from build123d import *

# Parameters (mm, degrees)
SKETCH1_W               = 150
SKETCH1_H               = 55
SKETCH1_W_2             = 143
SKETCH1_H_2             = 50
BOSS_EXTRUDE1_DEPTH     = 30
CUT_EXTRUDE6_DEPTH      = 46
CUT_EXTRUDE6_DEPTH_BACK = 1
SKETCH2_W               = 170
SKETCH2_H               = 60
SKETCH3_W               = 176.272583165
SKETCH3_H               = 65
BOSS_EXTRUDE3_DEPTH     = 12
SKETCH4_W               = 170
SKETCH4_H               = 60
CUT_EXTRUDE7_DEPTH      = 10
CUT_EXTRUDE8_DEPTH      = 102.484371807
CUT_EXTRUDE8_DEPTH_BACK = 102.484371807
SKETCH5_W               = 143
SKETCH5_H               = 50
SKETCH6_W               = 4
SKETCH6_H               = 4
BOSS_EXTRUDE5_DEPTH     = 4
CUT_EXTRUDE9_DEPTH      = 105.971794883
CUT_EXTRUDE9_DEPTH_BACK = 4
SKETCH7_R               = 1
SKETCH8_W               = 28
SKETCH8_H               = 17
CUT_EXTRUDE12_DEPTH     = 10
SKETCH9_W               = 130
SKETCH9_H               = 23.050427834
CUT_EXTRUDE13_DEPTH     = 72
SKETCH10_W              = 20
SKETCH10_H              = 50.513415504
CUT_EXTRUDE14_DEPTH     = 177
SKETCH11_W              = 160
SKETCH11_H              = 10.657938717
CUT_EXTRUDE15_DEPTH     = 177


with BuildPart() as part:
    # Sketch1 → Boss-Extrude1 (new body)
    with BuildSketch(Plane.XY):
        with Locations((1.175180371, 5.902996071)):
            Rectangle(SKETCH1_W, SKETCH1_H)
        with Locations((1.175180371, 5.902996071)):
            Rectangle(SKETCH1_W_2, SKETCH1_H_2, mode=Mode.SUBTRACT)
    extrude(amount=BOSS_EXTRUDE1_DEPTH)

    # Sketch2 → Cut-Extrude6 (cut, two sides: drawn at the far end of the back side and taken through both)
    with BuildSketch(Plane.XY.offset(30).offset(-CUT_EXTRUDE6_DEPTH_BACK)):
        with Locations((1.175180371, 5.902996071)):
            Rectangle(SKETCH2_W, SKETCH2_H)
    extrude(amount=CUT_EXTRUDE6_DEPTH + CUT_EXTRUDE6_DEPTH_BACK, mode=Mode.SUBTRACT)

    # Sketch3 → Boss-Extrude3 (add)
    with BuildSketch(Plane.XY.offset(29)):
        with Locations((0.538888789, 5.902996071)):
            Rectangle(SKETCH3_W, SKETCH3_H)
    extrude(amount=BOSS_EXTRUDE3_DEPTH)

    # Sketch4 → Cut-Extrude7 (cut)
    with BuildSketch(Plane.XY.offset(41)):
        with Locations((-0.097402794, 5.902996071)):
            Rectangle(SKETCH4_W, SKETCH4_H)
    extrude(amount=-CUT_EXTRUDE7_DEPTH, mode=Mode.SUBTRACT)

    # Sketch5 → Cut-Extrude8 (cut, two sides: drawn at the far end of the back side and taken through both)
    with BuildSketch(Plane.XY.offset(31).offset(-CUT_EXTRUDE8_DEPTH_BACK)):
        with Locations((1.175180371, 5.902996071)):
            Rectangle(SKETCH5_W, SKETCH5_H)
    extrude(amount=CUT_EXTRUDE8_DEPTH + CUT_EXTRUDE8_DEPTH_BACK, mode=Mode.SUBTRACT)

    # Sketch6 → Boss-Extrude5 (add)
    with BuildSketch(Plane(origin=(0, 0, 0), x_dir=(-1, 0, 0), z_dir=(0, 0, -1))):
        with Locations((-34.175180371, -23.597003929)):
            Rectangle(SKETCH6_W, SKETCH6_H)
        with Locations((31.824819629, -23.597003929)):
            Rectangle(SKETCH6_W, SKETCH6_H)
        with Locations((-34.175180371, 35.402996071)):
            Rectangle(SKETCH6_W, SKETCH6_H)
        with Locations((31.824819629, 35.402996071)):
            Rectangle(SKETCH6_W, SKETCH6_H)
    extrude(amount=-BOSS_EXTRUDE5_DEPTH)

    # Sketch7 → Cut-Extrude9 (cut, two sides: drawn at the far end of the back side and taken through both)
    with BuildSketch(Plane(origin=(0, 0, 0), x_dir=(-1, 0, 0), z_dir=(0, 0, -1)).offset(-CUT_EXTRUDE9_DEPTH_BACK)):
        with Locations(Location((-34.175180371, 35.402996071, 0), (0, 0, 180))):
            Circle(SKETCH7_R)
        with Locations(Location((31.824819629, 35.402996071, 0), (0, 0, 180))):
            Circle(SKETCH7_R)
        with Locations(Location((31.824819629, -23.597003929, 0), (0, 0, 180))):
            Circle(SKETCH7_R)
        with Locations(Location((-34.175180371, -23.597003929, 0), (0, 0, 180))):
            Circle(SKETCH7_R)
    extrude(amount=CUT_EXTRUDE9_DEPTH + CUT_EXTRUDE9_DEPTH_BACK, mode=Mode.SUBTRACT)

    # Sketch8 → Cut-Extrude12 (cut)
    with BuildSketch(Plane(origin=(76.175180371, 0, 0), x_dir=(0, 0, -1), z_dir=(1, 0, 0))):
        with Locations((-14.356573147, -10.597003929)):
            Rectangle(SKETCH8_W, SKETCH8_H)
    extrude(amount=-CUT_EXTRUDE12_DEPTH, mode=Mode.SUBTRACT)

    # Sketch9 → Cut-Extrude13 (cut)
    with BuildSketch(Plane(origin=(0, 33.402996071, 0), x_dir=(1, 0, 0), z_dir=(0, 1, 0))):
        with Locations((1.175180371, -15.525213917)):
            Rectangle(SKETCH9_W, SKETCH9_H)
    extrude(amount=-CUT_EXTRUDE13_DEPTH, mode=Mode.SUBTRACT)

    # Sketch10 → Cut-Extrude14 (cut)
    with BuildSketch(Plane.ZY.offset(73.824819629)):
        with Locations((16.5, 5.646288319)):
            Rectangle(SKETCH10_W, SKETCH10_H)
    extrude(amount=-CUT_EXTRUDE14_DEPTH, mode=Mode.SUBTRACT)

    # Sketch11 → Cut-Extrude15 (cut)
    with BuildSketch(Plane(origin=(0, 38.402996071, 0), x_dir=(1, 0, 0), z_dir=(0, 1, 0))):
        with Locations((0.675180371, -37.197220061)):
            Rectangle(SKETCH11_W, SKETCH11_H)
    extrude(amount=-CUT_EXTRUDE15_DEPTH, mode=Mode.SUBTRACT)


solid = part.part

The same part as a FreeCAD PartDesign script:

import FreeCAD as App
import Part
import Sketcher
from FreeCAD import Vector

doc = App.newDocument("Part")
body = doc.addObject("PartDesign::Body", "Body")

sketch1 = doc.addObject("Sketcher::SketchObject", "Sketch")
body.addObject(sketch1)
sketch1.AttachmentSupport = (doc.XY_Plane, [""])
sketch1.MapMode = "FlatFace"
sketch1.addGeometry([
    Part.LineSegment(Vector(-74, 33, 0), Vector(-74, -22, 0)),
    Part.LineSegment(Vector(-74, -22, 0), Vector(76, -22, 0)),
    Part.LineSegment(Vector(76, -22, 0), Vector(76, 33, 0)),
    Part.LineSegment(Vector(76, 33, 0), Vector(-74, 33, 0)),
    Part.LineSegment(Vector(73, -19, 0), Vector(-70, -19, 0)),
    Part.LineSegment(Vector(-70, -19, 0), Vector(-70, 31, 0)),
    Part.LineSegment(Vector(-70, 31, 0), Vector(73, 31, 0)),
    Part.LineSegment(Vector(73, 31, 0), Vector(73, -19, 0)),
], False)
sketch1.addConstraint([
    Sketcher.Constraint("Coincident", 0, 2, 1, 1),
    Sketcher.Constraint("Coincident", 1, 2, 2, 1),
    Sketcher.Constraint("Coincident", 2, 2, 3, 1),
    Sketcher.Constraint("Coincident", 3, 2, 0, 1),
    Sketcher.Constraint("Coincident", 4, 2, 5, 1),
    Sketcher.Constraint("Coincident", 5, 2, 6, 1),
    Sketcher.Constraint("Coincident", 6, 2, 7, 1),
    Sketcher.Constraint("Coincident", 7, 2, 4, 1),
    Sketcher.Constraint("Vertical", 0),
    Sketcher.Constraint("Horizontal", 1),
    Sketcher.Constraint("Vertical", 2),
    Sketcher.Constraint("Horizontal", 3),
    Sketcher.Constraint("Horizontal", 4),
    Sketcher.Constraint("Vertical", 5),
    Sketcher.Constraint("Horizontal", 6),
    Sketcher.Constraint("Vertical", 7),
    Sketcher.Constraint("DistanceX", 1, 1, 1, 2, 150.0),
    Sketcher.Constraint("DistanceX", 4, 2, 4, 1, 143.0),
    Sketcher.Constraint("DistanceY", 0, 2, 0, 1, 55.0),
    Sketcher.Constraint("DistanceY", 5, 1, 5, 2, 50.0),
    Sketcher.Constraint("DistanceX", 0, 2, 4, 2, 3.5),
    Sketcher.Constraint("DistanceY", 0, 2, 4, 2, 2.5),
    Sketcher.Constraint("DistanceX", 0, 2, -1, 1, 73.82482),
    Sketcher.Constraint("DistanceY", 0, 2, -1, 1, 21.597004),
])
pad1 = doc.addObject("PartDesign::Pad", "Pad")
body.addObject(pad1)
pad1.Profile = sketch1
pad1.Length = 30

sketch2 = doc.addObject("Sketcher::SketchObject", "Sketch001")
body.addObject(sketch2)
sketch2.AttachmentSupport = (doc.XY_Plane, [""])
sketch2.MapMode = "FlatFace"
sketch2.AttachmentOffset = App.Placement(Vector(0, 0, 30), App.Rotation())
sketch2.addGeometry([
    Part.LineSegment(Vector(-84, 36, 0), Vector(-84, -24, 0)),
    Part.LineSegment(Vector(-84, -24, 0), Vector(86, -24, 0)),
    Part.LineSegment(Vector(86, -24, 0), Vector(86, 36, 0)),
    Part.LineSegment(Vector(86, 36, 0), Vector(-84, 36, 0)),
], False)
sketch2.addConstraint([
    Sketcher.Constraint("Coincident", 0, 2, 1, 1),
    Sketcher.Constraint("Coincident", 1, 2, 2, 1),
    Sketcher.Constraint("Coincident", 2, 2, 3, 1),
    Sketcher.Constraint("Coincident", 3, 2, 0, 1),
    Sketcher.Constraint("Vertical", 0),
    Sketcher.Constraint("Horizontal", 1),
    Sketcher.Constraint("Vertical", 2),
    Sketcher.Constraint("Horizontal", 3),
    Sketcher.Constraint("DistanceX", 1, 1, 1, 2, 170.0),
    Sketcher.Constraint("DistanceY", 0, 2, 0, 1, 60.0),
    Sketcher.Constraint("DistanceX", 0, 2, -1, 1, 83.82482),
    Sketcher.Constraint("DistanceY", 0, 2, -1, 1, 24.097004),
])
pocket1 = doc.addObject("PartDesign::Pocket", "Pocket")
body.addObject(pocket1)
pocket1.Profile = sketch2
pocket1.Type = "TwoLengths"
pocket1.Length = 46
pocket1.Length2 = 1
pocket1.Reversed = True

sketch3 = doc.addObject("Sketcher::SketchObject", "Sketch002")
body.addObject(sketch3)
sketch3.AttachmentSupport = (doc.XY_Plane, [""])
sketch3.MapMode = "FlatFace"
sketch3.AttachmentOffset = App.Placement(Vector(0, 0, 29), App.Rotation())
sketch3.addGeometry([
    Part.LineSegment(Vector(-88, 38, 0), Vector(-88, -27, 0)),
    Part.LineSegment(Vector(-88, -27, 0), Vector(89, -27, 0)),
    Part.LineSegment(Vector(89, -27, 0), Vector(89, 38, 0)),
    Part.LineSegment(Vector(89, 38, 0), Vector(-88, 38, 0)),
], False)
sketch3.addConstraint([
    Sketcher.Constraint("Coincident", 0, 2, 1, 1),
    Sketcher.Constraint("Coincident", 1, 2, 2, 1),
    Sketcher.Constraint("Coincident", 2, 2, 3, 1),
    Sketcher.Constraint("Coincident", 3, 2, 0, 1),
    Sketcher.Constraint("Vertical", 0),
    Sketcher.Constraint("Horizontal", 1),
    Sketcher.Constraint("Vertical", 2),
    Sketcher.Constraint("Horizontal", 3),
    Sketcher.Constraint("DistanceY", 0, 2, 0, 1, 65.0),
    Sketcher.Constraint("DistanceX", 1, 1, 1, 2, 176.272583),
    Sketcher.Constraint("DistanceX", -1, 1, 1, 2, 88.67518),
    Sketcher.Constraint("DistanceY", 0, 2, -1, 1, 26.597004),
])
pad2 = doc.addObject("PartDesign::Pad", "Pad001")
body.addObject(pad2)
pad2.Profile = sketch3
pad2.Length = 12

sketch4 = doc.addObject("Sketcher::SketchObject", "Sketch003")
body.addObject(sketch4)
sketch4.AttachmentSupport = (doc.XY_Plane, [""])
sketch4.MapMode = "FlatFace"
sketch4.AttachmentOffset = App.Placement(Vector(0, 0, 41), App.Rotation())
sketch4.addGeometry([
    Part.LineSegment(Vector(-85, 36, 0), Vector(-85, -24, 0)),
    Part.LineSegment(Vector(-85, -24, 0), Vector(85, -24, 0)),
    Part.LineSegment(Vector(85, -24, 0), Vector(85, 36, 0)),
    Part.LineSegment(Vector(85, 36, 0), Vector(-85, 36, 0)),
], False)
sketch4.addConstraint([
    Sketcher.Constraint("Coincident", 0, 2, 1, 1),
    Sketcher.Constraint("Coincident", 1, 2, 2, 1),
    Sketcher.Constraint("Coincident", 2, 2, 3, 1),
    Sketcher.Constraint("Coincident", 3, 2, 0, 1),
    Sketcher.Constraint("Vertical", 0),
    Sketcher.Constraint("Horizontal", 1),
    Sketcher.Constraint("Vertical", 2),
    Sketcher.Constraint("Horizontal", 3),
    Sketcher.Constraint("DistanceX", 1, 1, 1, 2, 170.0),
    Sketcher.Constraint("DistanceY", 0, 2, 0, 1, 60.0),
    Sketcher.Constraint("DistanceX", 0, 2, -1, 1, 85.097403),
    Sketcher.Constraint("DistanceY", 0, 2, -1, 1, 24.097004),
])
pocket2 = doc.addObject("PartDesign::Pocket", "Pocket001")
body.addObject(pocket2)
pocket2.Profile = sketch4
pocket2.Length = 10

sketch5 = doc.addObject("Sketcher::SketchObject", "Sketch004")
body.addObject(sketch5)
sketch5.AttachmentSupport = (doc.XY_Plane, [""])
sketch5.MapMode = "FlatFace"
sketch5.AttachmentOffset = App.Placement(Vector(0, 0, 31), App.Rotation())
sketch5.addGeometry([
    Part.LineSegment(Vector(-70, 31, 0), Vector(-70, -19, 0)),
    Part.LineSegment(Vector(-70, -19, 0), Vector(73, -19, 0)),
    Part.LineSegment(Vector(73, -19, 0), Vector(73, 31, 0)),
    Part.LineSegment(Vector(73, 31, 0), Vector(-70, 31, 0)),
], False)
sketch5.addConstraint([
    Sketcher.Constraint("Coincident", 0, 2, 1, 1),
    Sketcher.Constraint("Coincident", 1, 2, 2, 1),
    Sketcher.Constraint("Coincident", 2, 2, 3, 1),
    Sketcher.Constraint("Coincident", 3, 2, 0, 1),
    Sketcher.Constraint("Vertical", 0),
    Sketcher.Constraint("Horizontal", 1),
    Sketcher.Constraint("Vertical", 2),
    Sketcher.Constraint("Horizontal", 3),
    Sketcher.Constraint("DistanceX", 1, 1, 1, 2, 143.0),
    Sketcher.Constraint("DistanceY", 0, 2, 0, 1, 50.0),
    Sketcher.Constraint("DistanceX", 0, 2, -1, 1, 70.32482),
    Sketcher.Constraint("DistanceY", 0, 2, -1, 1, 19.097004),
])
pocket3 = doc.addObject("PartDesign::Pocket", "Pocket002")
body.addObject(pocket3)
pocket3.Profile = sketch5
pocket3.Type = "ThroughAll"
pocket3.Midplane = True

sketch6 = doc.addObject("Sketcher::SketchObject", "Sketch005")
body.addObject(sketch6)
sketch6.AttachmentSupport = (doc.XY_Plane, [""])
sketch6.MapMode = "FlatFace"
sketch6.addGeometry([
    Part.LineSegment(Vector(36.2, -21.6, 0), Vector(36.2, -25.6, 0)),
    Part.LineSegment(Vector(36.2, -25.6, 0), Vector(32.2, -25.6, 0)),
    Part.LineSegment(Vector(32.2, -25.6, 0), Vector(32.2, -21.6, 0)),
    Part.LineSegment(Vector(32.2, -21.6, 0), Vector(36.2, -21.6, 0)),
    Part.LineSegment(Vector(-29.8, -21.6, 0), Vector(-29.8, -25.6, 0)),
    Part.LineSegment(Vector(-29.8, -25.6, 0), Vector(-33.8, -25.6, 0)),
    Part.LineSegment(Vector(-33.8, -25.6, 0), Vector(-33.8, -21.6, 0)),
    Part.LineSegment(Vector(-33.8, -21.6, 0), Vector(-29.8, -21.6, 0)),
    Part.LineSegment(Vector(36.2, 37.4, 0), Vector(36.2, 33.4, 0)),
    Part.LineSegment(Vector(36.2, 33.4, 0), Vector(32.2, 33.4, 0)),
    Part.LineSegment(Vector(32.2, 33.4, 0), Vector(32.2, 37.4, 0)),
    Part.LineSegment(Vector(32.2, 37.4, 0), Vector(36.2, 37.4, 0)),
    Part.LineSegment(Vector(-29.8, 37.4, 0), Vector(-29.8, 33.4, 0)),
    Part.LineSegment(Vector(-29.8, 33.4, 0), Vector(-33.8, 33.4, 0)),
    Part.LineSegment(Vector(-33.8, 33.4, 0), Vector(-33.8, 37.4, 0)),
    Part.LineSegment(Vector(-33.8, 37.4, 0), Vector(-29.8, 37.4, 0)),
], False)
sketch6.addConstraint([
    Sketcher.Constraint("Coincident", 0, 2, 1, 1),
    Sketcher.Constraint("Coincident", 1, 2, 2, 1),
    Sketcher.Constraint("Coincident", 2, 2, 3, 1),
    Sketcher.Constraint("Coincident", 3, 2, 0, 1),
    Sketcher.Constraint("Coincident", 4, 2, 5, 1),
    Sketcher.Constraint("Coincident", 5, 2, 6, 1),
    Sketcher.Constraint("Coincident", 6, 2, 7, 1),
    Sketcher.Constraint("Coincident", 7, 2, 4, 1),
    Sketcher.Constraint("Coincident", 8, 2, 9, 1),
    Sketcher.Constraint("Coincident", 9, 2, 10, 1),
    Sketcher.Constraint("Coincident", 10, 2, 11, 1),
    Sketcher.Constraint("Coincident", 11, 2, 8, 1),
    Sketcher.Constraint("Coincident", 12, 2, 13, 1),
    Sketcher.Constraint("Coincident", 13, 2, 14, 1),
    Sketcher.Constraint("Coincident", 14, 2, 15, 1),
    Sketcher.Constraint("Coincident", 15, 2, 12, 1),
    Sketcher.Constraint("Vertical", 0),
    Sketcher.Constraint("Horizontal", 1),
    Sketcher.Constraint("Vertical", 2),
    Sketcher.Constraint("Horizontal", 3),
    Sketcher.Constraint("Vertical", 4),
    Sketcher.Constraint("Horizontal", 5),
    Sketcher.Constraint("Vertical", 6),
    Sketcher.Constraint("Horizontal", 7),
    Sketcher.Constraint("Vertical", 8),
    Sketcher.Constraint("Horizontal", 9),
    Sketcher.Constraint("Vertical", 10),
    Sketcher.Constraint("Horizontal", 11),
    Sketcher.Constraint("Vertical", 12),
    Sketcher.Constraint("Horizontal", 13),
    Sketcher.Constraint("Vertical", 14),
    Sketcher.Constraint("Horizontal", 15),
    Sketcher.Constraint("Horizontal", 1, 2, 4, 2),
    Sketcher.Constraint("Horizontal", 3, 2, 6, 2),
    Sketcher.Constraint("Horizontal", 9, 2, 12, 2),
    Sketcher.Constraint("Horizontal", 11, 2, 14, 2),
    Sketcher.Constraint("Vertical", 3, 2, 8, 2),
    Sketcher.Constraint("Vertical", 2, 2, 9, 2),
    Sketcher.Constraint("Vertical", 7, 2, 12, 2),
    Sketcher.Constraint("Vertical", 6, 2, 13, 2),
    Sketcher.Constraint("Equal", 3, 5),
    Sketcher.Constraint("Equal", 15, 0),
    Sketcher.Constraint("Equal", 6, 8),
    Sketcher.Constraint("DistanceX", 1, 2, 1, 1, 4.0),
    Sketcher.Constraint("DistanceX", 4, 2, 1, 2, 62.0),
    Sketcher.Constraint("DistanceY", 3, 2, 8, 2, 55.0),
    Sketcher.Constraint("DistanceX", -1, 1, 0, 2, 36.17518),
    Sketcher.Constraint("DistanceY", 0, 2, -1, 1, 25.597004),
])
pad3 = doc.addObject("PartDesign::Pad", "Pad002")
body.addObject(pad3)
pad3.Profile = sketch6
pad3.Length = 4

sketch7 = doc.addObject("Sketcher::SketchObject", "Sketch006")
body.addObject(sketch7)
sketch7.AttachmentSupport = (doc.XY_Plane, [""])
sketch7.MapMode = "FlatFace"
sketch7.addGeometry([
    Part.Circle(Vector(34.2, 35.4, 0), Vector(0, 0, 1), 1),
    Part.Circle(Vector(-31.8, 35.4, 0), Vector(0, 0, 1), 1),
    Part.Circle(Vector(-31.8, -23.6, 0), Vector(0, 0, 1), 1),
    Part.Circle(Vector(34.2, -23.6, 0), Vector(0, 0, 1), 1),
], False)
sketch7.addConstraint([
    Sketcher.Constraint("Equal", 0, 1),
    Sketcher.Constraint("Equal", 1, 2),
    Sketcher.Constraint("Equal", 2, 3),
    Sketcher.Constraint("Horizontal", 0, 3, 1, 3),
    Sketcher.Constraint("Horizontal", 2, 3, 3, 3),
    Sketcher.Constraint("Vertical", 1, 3, 2, 3),
    Sketcher.Constraint("Vertical", 0, 3, 3, 3),
    Sketcher.Constraint("Diameter", 0, 2.0),
    Sketcher.Constraint("DistanceX", 1, 3, 0, 3, 66.0),
    Sketcher.Constraint("DistanceY", 2, 3, 1, 3, 59.0),
    Sketcher.Constraint("DistanceX", -1, 1, 0, 3, 34.17518),
    Sketcher.Constraint("DistanceY", -1, 1, 0, 3, 35.402996),
])
pocket4 = doc.addObject("PartDesign::Pocket", "Pocket003")
body.addObject(pocket4)
pocket4.Profile = sketch7
pocket4.Type = "TwoLengths"
pocket4.Length = 105.971795
pocket4.Length2 = 4

sketch8 = doc.addObject("Sketcher::SketchObject", "Sketch007")
body.addObject(sketch8)
sketch8.AttachmentSupport = (doc.YZ_Plane, [""])
sketch8.MapMode = "FlatFace"
sketch8.AttachmentOffset = App.Placement(Vector(0, 0, 76.17518), App.Rotation())
sketch8.addGeometry([
    Part.LineSegment(Vector(-2, 28, 0), Vector(-19, 28, 0)),
    Part.LineSegment(Vector(-19, 28, 0), Vector(-19, 0, 0)),
    Part.LineSegment(Vector(-19, 0, 0), Vector(-2, 0, 0)),
    Part.LineSegment(Vector(-2, 0, 0), Vector(-2, 28, 0)),
], False)
sketch8.addConstraint([
    Sketcher.Constraint("Coincident", 0, 2, 1, 1),
    Sketcher.Constraint("Coincident", 1, 2, 2, 1),
    Sketcher.Constraint("Coincident", 2, 2, 3, 1),
    Sketcher.Constraint("Coincident", 3, 2, 0, 1),
    Sketcher.Constraint("Horizontal", 0),
    Sketcher.Constraint("Vertical", 1),
    Sketcher.Constraint("Horizontal", 2),
    Sketcher.Constraint("Vertical", 3),
    Sketcher.Constraint("DistanceX", 0, 2, 0, 1, 17.0),
    Sketcher.Constraint("DistanceY", 1, 2, 1, 1, 28.0),
    Sketcher.Constraint("DistanceX", 0, 2, -1, 1, 19.097004),
    Sketcher.Constraint("DistanceY", -1, 1, 0, 2, 28.356573),
])
pocket5 = doc.addObject("PartDesign::Pocket", "Pocket004")
body.addObject(pocket5)
pocket5.Profile = sketch8
pocket5.Length = 10

sketch9 = doc.addObject("Sketcher::SketchObject", "Sketch008")
body.addObject(sketch9)
sketch9.AttachmentSupport = (doc.XZ_Plane, [""])
sketch9.MapMode = "FlatFace"
sketch9.AttachmentOffset = App.Placement(Vector(0, 0, -33.402996), App.Rotation())
sketch9.addGeometry([
    Part.LineSegment(Vector(-64, 4, 0), Vector(-64, 27, 0)),
    Part.LineSegment(Vector(-64, 27, 0), Vector(66, 27, 0)),
    Part.LineSegment(Vector(66, 27, 0), Vector(66, 4, 0)),
    Part.LineSegment(Vector(66, 4, 0), Vector(-64, 4, 0)),
], False)
sketch9.addConstraint([
    Sketcher.Constraint("Coincident", 0, 2, 1, 1),
    Sketcher.Constraint("Coincident", 1, 2, 2, 1),
    Sketcher.Constraint("Coincident", 2, 2, 3, 1),
    Sketcher.Constraint("Coincident", 3, 2, 0, 1),
    Sketcher.Constraint("Vertical", 0),
    Sketcher.Constraint("Horizontal", 1),
    Sketcher.Constraint("Vertical", 2),
    Sketcher.Constraint("Horizontal", 3),
    Sketcher.Constraint("DistanceX", 1, 1, 1, 2, 130.0),
    Sketcher.Constraint("DistanceY", -1, 1, 2, 2, 4.0),
    Sketcher.Constraint("DistanceY", 0, 1, 0, 2, 23.050428),
    Sketcher.Constraint("DistanceX", 0, 2, -1, 1, 63.82482),
])
pocket6 = doc.addObject("PartDesign::Pocket", "Pocket005")
body.addObject(pocket6)
pocket6.Profile = sketch9
pocket6.Length = 72
pocket6.Reversed = True

sketch10 = doc.addObject("Sketcher::SketchObject", "Sketch009")
body.addObject(sketch10)
sketch10.AttachmentSupport = (doc.YZ_Plane, [""])
sketch10.MapMode = "FlatFace"
sketch10.AttachmentOffset = App.Placement(Vector(0, 0, -73.82482), App.Rotation())
sketch10.addGeometry([
    Part.LineSegment(Vector(31, 6, 0), Vector(-20, 6, 0)),
    Part.LineSegment(Vector(-20, 6, 0), Vector(-20, 26, 0)),
    Part.LineSegment(Vector(-20, 26, 0), Vector(31, 26, 0)),
    Part.LineSegment(Vector(31, 26, 0), Vector(31, 6, 0)),
], False)
sketch10.addConstraint([
    Sketcher.Constraint("Coincident", 0, 2, 1, 1),
    Sketcher.Constraint("Coincident", 1, 2, 2, 1),
    Sketcher.Constraint("Coincident", 2, 2, 3, 1),
    Sketcher.Constraint("Coincident", 3, 2, 0, 1),
    Sketcher.Constraint("Horizontal", 0),
    Sketcher.Constraint("Vertical", 1),
    Sketcher.Constraint("Horizontal", 2),
    Sketcher.Constraint("Vertical", 3),
    Sketcher.Constraint("DistanceY", 1, 1, 1, 2, 20.0),
    Sketcher.Constraint("DistanceY", -1, 1, 0, 2, 6.5),
    Sketcher.Constraint("DistanceX", 0, 2, 0, 1, 50.513416),
    Sketcher.Constraint("DistanceX", 0, 2, -1, 1, 19.610419),
])
pocket7 = doc.addObject("PartDesign::Pocket", "Pocket006")
body.addObject(pocket7)
pocket7.Profile = sketch10
pocket7.Length = 177
pocket7.Reversed = True

sketch11 = doc.addObject("Sketcher::SketchObject", "Sketch010")
body.addObject(sketch11)
sketch11.AttachmentSupport = (doc.XZ_Plane, [""])
sketch11.MapMode = "FlatFace"
sketch11.AttachmentOffset = App.Placement(Vector(0, 0, -38.402996), App.Rotation())
sketch11.addGeometry([
    Part.LineSegment(Vector(-79, 32, 0), Vector(-79, 43, 0)),
    Part.LineSegment(Vector(-79, 43, 0), Vector(81, 43, 0)),
    Part.LineSegment(Vector(81, 43, 0), Vector(81, 32, 0)),
    Part.LineSegment(Vector(81, 32, 0), Vector(-79, 32, 0)),
], False)
sketch11.addConstraint([
    Sketcher.Constraint("Coincident", 0, 2, 1, 1),
    Sketcher.Constraint("Coincident", 1, 2, 2, 1),
    Sketcher.Constraint("Coincident", 2, 2, 3, 1),
    Sketcher.Constraint("Coincident", 3, 2, 0, 1),
    Sketcher.Constraint("Vertical", 0),
    Sketcher.Constraint("Horizontal", 1),
    Sketcher.Constraint("Vertical", 2),
    Sketcher.Constraint("Horizontal", 3),
    Sketcher.Constraint("DistanceX", 1, 1, 1, 2, 160.0),
    Sketcher.Constraint("DistanceY", 0, 1, 0, 2, 10.657939),
    Sketcher.Constraint("DistanceX", 0, 2, -1, 1, 79.32482),
    Sketcher.Constraint("DistanceY", -1, 1, 0, 2, 42.526189),
])
pocket8 = doc.addObject("PartDesign::Pocket", "Pocket007")
body.addObject(pocket8)
pocket8.Profile = sketch11
pocket8.Length = 177
pocket8.Reversed = True

doc.recompute()
